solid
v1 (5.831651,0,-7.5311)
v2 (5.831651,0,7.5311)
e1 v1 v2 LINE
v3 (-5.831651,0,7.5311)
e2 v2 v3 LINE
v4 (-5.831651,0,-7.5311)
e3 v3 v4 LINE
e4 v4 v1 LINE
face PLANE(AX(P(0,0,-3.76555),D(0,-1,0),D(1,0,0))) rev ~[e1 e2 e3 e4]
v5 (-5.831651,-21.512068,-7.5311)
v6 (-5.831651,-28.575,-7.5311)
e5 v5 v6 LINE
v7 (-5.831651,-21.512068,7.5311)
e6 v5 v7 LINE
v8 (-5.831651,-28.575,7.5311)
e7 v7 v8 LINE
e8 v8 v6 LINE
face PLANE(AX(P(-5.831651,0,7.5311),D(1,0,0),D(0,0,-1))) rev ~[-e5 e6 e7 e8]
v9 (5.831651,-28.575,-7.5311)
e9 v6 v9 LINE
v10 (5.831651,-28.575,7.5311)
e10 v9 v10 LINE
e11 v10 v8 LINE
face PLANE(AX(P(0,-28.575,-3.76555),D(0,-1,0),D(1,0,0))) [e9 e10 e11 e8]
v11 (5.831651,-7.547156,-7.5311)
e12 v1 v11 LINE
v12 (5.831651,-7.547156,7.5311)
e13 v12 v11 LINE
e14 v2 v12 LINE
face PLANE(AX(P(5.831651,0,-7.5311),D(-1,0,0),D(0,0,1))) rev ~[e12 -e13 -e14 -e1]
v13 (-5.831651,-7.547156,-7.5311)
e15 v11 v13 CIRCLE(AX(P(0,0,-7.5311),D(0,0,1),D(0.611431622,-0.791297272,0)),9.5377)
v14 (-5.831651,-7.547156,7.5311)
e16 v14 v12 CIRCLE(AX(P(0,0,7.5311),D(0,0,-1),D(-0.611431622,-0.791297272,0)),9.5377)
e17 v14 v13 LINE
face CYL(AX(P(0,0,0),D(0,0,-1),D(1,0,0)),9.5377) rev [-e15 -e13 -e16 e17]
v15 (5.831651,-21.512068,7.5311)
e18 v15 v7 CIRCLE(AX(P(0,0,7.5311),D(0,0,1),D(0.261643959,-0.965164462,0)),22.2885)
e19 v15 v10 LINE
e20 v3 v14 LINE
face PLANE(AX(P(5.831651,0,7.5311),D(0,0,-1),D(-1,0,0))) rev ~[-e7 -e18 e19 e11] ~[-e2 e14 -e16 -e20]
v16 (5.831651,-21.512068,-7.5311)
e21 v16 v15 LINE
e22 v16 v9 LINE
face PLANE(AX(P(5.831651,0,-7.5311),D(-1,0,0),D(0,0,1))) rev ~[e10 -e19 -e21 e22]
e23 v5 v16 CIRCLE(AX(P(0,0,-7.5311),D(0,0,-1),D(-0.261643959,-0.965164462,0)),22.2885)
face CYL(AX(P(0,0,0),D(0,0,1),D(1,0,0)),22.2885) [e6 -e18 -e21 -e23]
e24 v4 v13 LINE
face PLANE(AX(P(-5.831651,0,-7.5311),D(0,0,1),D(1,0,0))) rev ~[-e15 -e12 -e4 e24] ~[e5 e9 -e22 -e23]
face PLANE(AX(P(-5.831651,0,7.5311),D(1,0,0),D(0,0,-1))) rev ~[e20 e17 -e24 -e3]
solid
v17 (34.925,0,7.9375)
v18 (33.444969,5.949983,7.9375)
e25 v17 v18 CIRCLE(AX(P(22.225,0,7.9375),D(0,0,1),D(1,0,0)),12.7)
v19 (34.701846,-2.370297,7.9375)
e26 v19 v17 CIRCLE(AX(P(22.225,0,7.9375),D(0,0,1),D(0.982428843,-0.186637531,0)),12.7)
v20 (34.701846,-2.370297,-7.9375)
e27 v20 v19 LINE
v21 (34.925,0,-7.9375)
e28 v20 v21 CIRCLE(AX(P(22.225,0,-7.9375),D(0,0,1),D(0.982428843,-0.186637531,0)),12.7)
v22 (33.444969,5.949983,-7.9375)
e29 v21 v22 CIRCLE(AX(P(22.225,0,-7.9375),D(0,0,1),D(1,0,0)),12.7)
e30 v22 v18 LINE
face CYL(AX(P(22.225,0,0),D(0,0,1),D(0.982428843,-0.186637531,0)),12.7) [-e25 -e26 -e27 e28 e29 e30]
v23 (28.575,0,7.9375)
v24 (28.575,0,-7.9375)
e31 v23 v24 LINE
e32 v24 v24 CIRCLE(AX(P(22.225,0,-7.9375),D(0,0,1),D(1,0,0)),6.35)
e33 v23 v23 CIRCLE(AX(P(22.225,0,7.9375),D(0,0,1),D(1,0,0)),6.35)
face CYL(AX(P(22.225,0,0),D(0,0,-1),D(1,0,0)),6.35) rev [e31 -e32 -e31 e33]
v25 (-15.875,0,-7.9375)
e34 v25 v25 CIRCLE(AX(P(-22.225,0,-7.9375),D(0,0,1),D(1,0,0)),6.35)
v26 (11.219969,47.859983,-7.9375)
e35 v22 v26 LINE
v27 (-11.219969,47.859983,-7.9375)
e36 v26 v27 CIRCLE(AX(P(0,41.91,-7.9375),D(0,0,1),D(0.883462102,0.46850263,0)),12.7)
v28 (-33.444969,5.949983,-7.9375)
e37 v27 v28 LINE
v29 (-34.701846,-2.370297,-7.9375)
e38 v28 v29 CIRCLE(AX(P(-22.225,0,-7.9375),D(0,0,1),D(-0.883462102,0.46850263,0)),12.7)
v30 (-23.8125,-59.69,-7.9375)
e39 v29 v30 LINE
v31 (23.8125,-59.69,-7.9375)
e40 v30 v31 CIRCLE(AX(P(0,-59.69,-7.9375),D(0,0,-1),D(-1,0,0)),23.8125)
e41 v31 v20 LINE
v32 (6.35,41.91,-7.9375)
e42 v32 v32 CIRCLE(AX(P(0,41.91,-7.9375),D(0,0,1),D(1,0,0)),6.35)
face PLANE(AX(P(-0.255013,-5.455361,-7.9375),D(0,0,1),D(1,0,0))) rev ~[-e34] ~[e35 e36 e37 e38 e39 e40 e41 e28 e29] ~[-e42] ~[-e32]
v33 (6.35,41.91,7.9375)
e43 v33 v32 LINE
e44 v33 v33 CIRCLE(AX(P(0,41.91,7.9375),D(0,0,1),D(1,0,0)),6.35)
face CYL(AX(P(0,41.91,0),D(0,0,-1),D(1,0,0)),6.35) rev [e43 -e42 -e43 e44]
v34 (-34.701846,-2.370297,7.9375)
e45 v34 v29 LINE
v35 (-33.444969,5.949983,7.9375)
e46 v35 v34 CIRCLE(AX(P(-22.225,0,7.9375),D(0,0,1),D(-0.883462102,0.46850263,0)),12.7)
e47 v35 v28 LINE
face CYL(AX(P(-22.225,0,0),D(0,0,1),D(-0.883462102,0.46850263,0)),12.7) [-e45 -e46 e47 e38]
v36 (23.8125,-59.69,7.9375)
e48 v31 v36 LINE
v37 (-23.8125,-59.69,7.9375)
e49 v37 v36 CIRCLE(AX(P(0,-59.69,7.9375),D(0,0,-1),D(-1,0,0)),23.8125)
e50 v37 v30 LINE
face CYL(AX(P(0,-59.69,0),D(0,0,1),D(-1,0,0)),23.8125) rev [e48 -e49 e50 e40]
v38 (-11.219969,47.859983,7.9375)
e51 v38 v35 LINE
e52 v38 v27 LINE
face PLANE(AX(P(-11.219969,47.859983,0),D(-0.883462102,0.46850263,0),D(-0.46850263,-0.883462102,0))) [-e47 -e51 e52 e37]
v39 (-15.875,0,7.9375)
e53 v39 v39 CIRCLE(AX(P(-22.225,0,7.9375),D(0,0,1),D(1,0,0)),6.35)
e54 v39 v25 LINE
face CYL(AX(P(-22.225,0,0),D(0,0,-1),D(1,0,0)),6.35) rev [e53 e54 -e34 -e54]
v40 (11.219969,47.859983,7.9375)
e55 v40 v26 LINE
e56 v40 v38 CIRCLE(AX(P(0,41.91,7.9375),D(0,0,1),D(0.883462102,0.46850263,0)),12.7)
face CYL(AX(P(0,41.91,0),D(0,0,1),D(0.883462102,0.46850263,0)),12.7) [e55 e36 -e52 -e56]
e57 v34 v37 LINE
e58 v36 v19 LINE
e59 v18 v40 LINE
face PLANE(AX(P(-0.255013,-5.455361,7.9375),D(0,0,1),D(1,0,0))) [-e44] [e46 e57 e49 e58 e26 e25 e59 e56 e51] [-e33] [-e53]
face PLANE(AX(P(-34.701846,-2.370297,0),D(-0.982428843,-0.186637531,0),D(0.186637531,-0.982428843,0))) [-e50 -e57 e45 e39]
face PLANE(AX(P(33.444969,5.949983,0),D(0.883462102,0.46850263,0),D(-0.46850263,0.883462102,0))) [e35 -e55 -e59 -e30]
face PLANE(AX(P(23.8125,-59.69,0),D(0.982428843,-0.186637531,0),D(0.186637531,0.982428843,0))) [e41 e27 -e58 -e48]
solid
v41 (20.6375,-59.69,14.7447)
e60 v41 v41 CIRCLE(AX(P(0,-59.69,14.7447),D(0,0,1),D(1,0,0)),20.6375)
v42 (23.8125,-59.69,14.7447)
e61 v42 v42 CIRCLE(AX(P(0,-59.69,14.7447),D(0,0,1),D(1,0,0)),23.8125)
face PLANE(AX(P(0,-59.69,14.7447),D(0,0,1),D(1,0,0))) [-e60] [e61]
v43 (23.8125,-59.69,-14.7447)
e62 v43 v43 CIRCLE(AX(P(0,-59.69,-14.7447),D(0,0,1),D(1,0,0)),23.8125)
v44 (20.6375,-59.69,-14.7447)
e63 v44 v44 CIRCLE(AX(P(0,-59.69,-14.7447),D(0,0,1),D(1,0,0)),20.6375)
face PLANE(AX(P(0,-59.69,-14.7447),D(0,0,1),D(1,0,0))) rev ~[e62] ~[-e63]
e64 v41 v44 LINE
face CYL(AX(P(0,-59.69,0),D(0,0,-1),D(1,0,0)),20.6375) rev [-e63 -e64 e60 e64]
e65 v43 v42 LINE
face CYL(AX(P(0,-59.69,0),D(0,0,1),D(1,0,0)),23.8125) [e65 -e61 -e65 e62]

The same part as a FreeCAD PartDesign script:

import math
import FreeCAD as App
import Part
import Sketcher
from FreeCAD import Vector
Q = App.Units.Quantity

doc = App.newDocument("Part")
params = doc.addObject("Spreadsheet::Sheet", "Params")
for row, (alias, value) in enumerate([
    ("sketch1_diameter", "1.755 in"),
    ("sketch1_diameter2", "0.751 in"),
    ("pad1_length", "0.593 in"),
    ("sketch2_height", "0.593 in"),
    ("pad2_length", "1.125 in"),
    ("sketch3_diameter", "0.5 in"),
    ("sketch3_radius", "0.5 in"),
    ("sketch3_radius2", "0.9375 in"),
    ("pad3_length", "0.625 in"),
    ("sketch4_diameter", "1.875 in"),
    ("sketch4_diameter2", "1.625 in"),
    ("pad4_length", "1.161 in"),
], start=1):
    params.set(f"A{row}", alias)
    params.set(f"B{row}", "=" + value)
    params.setAlias(f"B{row}", alias)

body = doc.addObject("PartDesign::Body", "Body")

sketch1 = doc.addObject("Sketcher::SketchObject", "Sketch")
body.addObject(sketch1)
sketch1.AttachmentSupport = (doc.XY_Plane, [""])
sketch1.MapMode = "FlatFace"
sketch1.addGeometry([
    Part.Circle(Vector(0, 0, 0), Vector(0, 0, 1), 22),
    Part.Circle(Vector(0, 0, 0), Vector(0, 0, 1), 10),
], False)
sketch1.addConstraint([
    Sketcher.Constraint("Coincident", 0, 3, -1, 1),
    Sketcher.Constraint("Coincident", 1, 3, -1, 1),
    Sketcher.Constraint("Diameter", 0, Q("1.755 in")),
    Sketcher.Constraint("Diameter", 1, Q("0.751 in")),
])
sketch1.setExpression("Constraints[2]", "Params.sketch1_diameter")
sketch1.setExpression("Constraints[3]", "Params.sketch1_diameter2")
pad1 = doc.addObject("PartDesign::Pad", "Pad")
body.addObject(pad1)
pad1.Profile = sketch1
pad1.setExpression("Length", "Params.pad1_length")
pad1.Midplane = True

sketch2 = doc.addObject("Sketcher::SketchObject", "Sketch001")
body.addObject(sketch2)
sketch2.AttachmentSupport = (doc.XZ_Plane, [""])
sketch2.MapMode = "FlatFace"
sketch2.addGeometry([
    Part.LineSegment(Vector(-6, -8, 0), Vector(6, -8, 0)),
    Part.LineSegment(Vector(6, -8, 0), Vector(6, 8, 0)),
    Part.LineSegment(Vector(6, 8, 0), Vector(-6, 8, 0)),
    Part.LineSegment(Vector(-6, 8, 0), Vector(-6, -8, 0)),
], False)
sketch2.addConstraint([
    Sketcher.Constraint("Coincident", 0, 2, 1, 1),
    Sketcher.Constraint("Coincident", 1, 2, 2, 1),
    Sketcher.Constraint("Coincident", 2, 2, 3, 1),
    Sketcher.Constraint("Coincident", 3, 2, 0, 1),
    Sketcher.Constraint("Horizontal", 0),
    Sketcher.Constraint("Vertical", 1),
    Sketcher.Constraint("Horizontal", 2),
    Sketcher.Constraint("Vertical", 3),
    Sketcher.Constraint("Symmetric", 0, 2, 2, 2, -1, 1),
    Sketcher.Constraint("DistanceY", 1, 1, 1, 2, Q("0.593 in")),
    Sketcher.Constraint("DistanceX", 0, 1, 0, 2, Q("11.663303 mm")),
])
sketch2.setExpression("Constraints[9]", "Params.sketch2_height")
pad2 = doc.addObject("PartDesign::Pad", "Pad001")
body.addObject(pad2)
pad2.Profile = sketch2
pad2.setExpression("Length", "Params.pad2_length")
body2 = doc.addObject("PartDesign::Body", "Body001")

sketch3 = doc.addObject("Sketcher::SketchObject", "Sketch002")
body2.addObject(sketch3)
sketch3.AttachmentSupport = (doc.getObject("XY_Plane001"), [""])
sketch3.MapMode = "FlatFace"
sketch3.addGeometry([
    Part.ArcOfCircle(Part.Circle(Vector(0, -59.7, 0), Vector(0, 0, 1), 23.8), math.radians(0), math.radians(180)),
    Part.LineSegment(Vector(23.8, -59.7, 0), Vector(34.7, -2.4, 0)),
    Part.ArcOfCircle(Part.Circle(Vector(22.2, 0, 0), Vector(0, 0, 1), 12.7), math.radians(-10.76), math.radians(0)),
    Part.ArcOfCircle(Part.Circle(Vector(22.2, 0, 0), Vector(0, 0, 1), 12.7), math.radians(0), math.radians(28)),
    Part.LineSegment(Vector(33.4, 5.9, 0), Vector(11.2, 47.9, 0)),
    Part.ArcOfCircle(Part.Circle(Vector(0, 41.9, 0), Vector(0, 0, 1), 12.7), math.radians(28), math.radians(152)),
    Part.LineSegment(Vector(-11.2, 47.9, 0), Vector(-33.4, 5.9, 0)),
    Part.ArcOfCircle(Part.Circle(Vector(-22.2, 0, 0), Vector(0, 0, 1), 12.7), math.radians(152), math.radians(191)),
    Part.LineSegment(Vector(-34.7, -2.4, 0), Vector(-23.8, -59.7, 0)),
    Part.Circle(Vector(-22.2, 0, 0), Vector(0, 0, 1), 6.3),
    Part.Circle(Vector(22.2, 0, 0), Vector(0, 0, 1), 6.3),
    Part.Circle(Vector(0, 41.9, 0), Vector(0, 0, 1), 6.3),
], False)
sketch3.addConstraint([
    Sketcher.Constraint("Coincident", 0, 1, 1, 1),
    Sketcher.Constraint("Tangent", 1, 2, 2, 1),
    Sketcher.Constraint("Tangent", 2, 2, 3, 1),
    Sketcher.Constraint("Tangent", 3, 2, 4, 1),
    Sketcher.Constraint("Tangent", 4, 2, 5, 1),
    Sketcher.Constraint("Tangent", 5, 2, 6, 1),
    Sketcher.Constraint("Tangent", 6, 2, 7, 1),
    Sketcher.Constraint("Tangent", 7, 2, 8, 1),
    Sketcher.Constraint("Coincident", 8, 2, 0, 2),
    Sketcher.Constraint("Coincident", 9, 3, 7, 3),
    Sketcher.Constraint("Coincident", 10, 3, 2, 3),
    Sketcher.Constraint("Coincident", 11, 3, 5, 3),
    Sketcher.Constraint("Equal", 2, 3),
    Sketcher.Constraint("Equal", 3, 5),
    Sketcher.Constraint("Equal", 5, 7),
    Sketcher.Constraint("Equal", 9, 10),
    Sketcher.Constraint("Equal", 10, 11),
    Sketcher.Constraint("Symmetric", 2, 3, 7, 3, -1, 1),
    Sketcher.Constraint("Symmetric", 4, 2, 5, 2, -2),
    Sketcher.Constraint("Symmetric", 0, 1, 8, 2, -2),
    Sketcher.Constraint("PointOnObject", 2, 2, -1),
    Sketcher.Constraint("Diameter", 9, Q("0.5 in")),
    Sketcher.Constraint("Radius", 2, Q("0.5 in")),
    Sketcher.Constraint("Radius", 0, Q("0.9375 in")),
    Sketcher.Constraint("DistanceY", 0, 3, 5, 3, Q("4 in")),
    Sketcher.Constraint("DistanceY", 0, 3, -1, 1, Q("2.35 in")),
    Sketcher.Constraint("DistanceY", 0, 1, -1, 1, Q("2.35 in")),
    Sketcher.Constraint("DistanceX", 7, 3, 2, 3, Q("1.75 in")),
])
sketch3.setExpression("Constraints[21]", "Params.sketch3_diameter")
sketch3.setExpression("Constraints[22]", "Params.sketch3_radius")
sketch3.setExpression("Constraints[23]", "Params.sketch3_radius2")
pad3 = doc.addObject("PartDesign::Pad", "Pad002")
body2.addObject(pad3)
pad3.Profile = sketch3
pad3.setExpression("Length", "Params.pad3_length")
pad3.Midplane = True
body3 = doc.addObject("PartDesign::Body", "Body002")

sketch4 = doc.addObject("Sketcher::SketchObject", "Sketch003")
body3.addObject(sketch4)
sketch4.AttachmentSupport = (doc.getObject("XY_Plane002"), [""])
sketch4.MapMode = "FlatFace"
sketch4.addGeometry([
    Part.Circle(Vector(0, -60, 0), Vector(0, 0, 1), 24),
    Part.Circle(Vector(0, -60, 0), Vector(0, 0, 1), 21),
], False)
sketch4.addConstraint([
    Sketcher.Constraint("Coincident", 1, 3, 0, 3),
    Sketcher.Constraint("PointOnObject", 0, 3, -2),
    Sketcher.Constraint("Diameter", 0, Q("1.875 in")),
    Sketcher.Constraint("Diameter", 1, Q("1.625 in")),
    Sketcher.Constraint("DistanceY", 0, 3, -1, 1, Q("2.35 in")),
])
sketch4.setExpression("Constraints[2]", "Params.sketch4_diameter")
sketch4.setExpression("Constraints[3]", "Params.sketch4_diameter2")
pad4 = doc.addObject("PartDesign::Pad", "Pad003")
body3.addObject(pad4)
pad4.Profile = sketch4
pad4.setExpression("Length", "Params.pad4_length")
pad4.Midplane = True

doc.recompute()
